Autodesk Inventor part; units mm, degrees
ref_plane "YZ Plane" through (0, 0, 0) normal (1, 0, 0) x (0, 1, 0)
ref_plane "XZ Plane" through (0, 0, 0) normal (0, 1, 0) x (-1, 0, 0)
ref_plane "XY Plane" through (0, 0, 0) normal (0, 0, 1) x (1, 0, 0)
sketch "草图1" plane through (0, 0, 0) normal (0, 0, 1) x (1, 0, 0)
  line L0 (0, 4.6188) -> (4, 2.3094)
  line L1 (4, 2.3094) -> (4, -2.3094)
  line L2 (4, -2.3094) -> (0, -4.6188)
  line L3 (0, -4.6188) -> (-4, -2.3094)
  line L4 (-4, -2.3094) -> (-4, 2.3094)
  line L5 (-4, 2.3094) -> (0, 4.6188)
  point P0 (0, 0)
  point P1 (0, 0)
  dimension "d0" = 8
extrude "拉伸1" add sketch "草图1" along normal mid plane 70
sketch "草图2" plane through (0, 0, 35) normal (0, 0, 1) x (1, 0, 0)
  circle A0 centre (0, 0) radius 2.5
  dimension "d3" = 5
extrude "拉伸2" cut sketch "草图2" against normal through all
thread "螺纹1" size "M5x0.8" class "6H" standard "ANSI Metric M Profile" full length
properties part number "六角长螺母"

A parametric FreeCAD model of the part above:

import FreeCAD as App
import Part
import Sketcher
Q = App.Units.Quantity

doc = App.newDocument("Part")
body = doc.addObject("PartDesign::Body", "Body")

sketch1 = body.newObject("Sketcher::SketchObject", "Sketch")
sketch1.AttachmentSupport = (doc.getObject("XY_Plane"), [""])
sketch1.MapMode = "FlatFace"
sketch1.addGeometry(Part.LineSegment(App.Vector(4, 2.3094, 0), App.Vector(0, 4.6188, 0)), False)
sketch1.addGeometry(Part.LineSegment(App.Vector(0, 4.6188, 0), App.Vector(-4, 2.3094, 0)), False)
sketch1.addGeometry(Part.LineSegment(App.Vector(-4, 2.3094, 0), App.Vector(-4, -2.3094, 0)), False)
sketch1.addGeometry(Part.LineSegment(App.Vector(-4, -2.3094, 0), App.Vector(0, -4.6188, 0)), False)
sketch1.addGeometry(Part.LineSegment(App.Vector(0, -4.6188, 0), App.Vector(4, -2.3094, 0)), False)
sketch1.addGeometry(Part.LineSegment(App.Vector(4, -2.3094, 0), App.Vector(4, 2.3094, 0)), False)
sketch1.addConstraint(Sketcher.Constraint("Coincident", 0, 2, 1, 1))
sketch1.addConstraint(Sketcher.Constraint("Coincident", 1, 2, 2, 1))
sketch1.addConstraint(Sketcher.Constraint("Coincident", 2, 2, 3, 1))
sketch1.addConstraint(Sketcher.Constraint("Coincident", 3, 2, 4, 1))
sketch1.addConstraint(Sketcher.Constraint("Coincident", 4, 2, 5, 1))
sketch1.addConstraint(Sketcher.Constraint("Coincident", 5, 2, 0, 1))
sketch1.addConstraint(Sketcher.Constraint("Vertical", 2))
sketch1.addConstraint(Sketcher.Constraint("Vertical", 5))
sketch1.addConstraint(Sketcher.Constraint("Symmetric", 0, 2, 3, 2, -1, 1))
sketch1.addConstraint(Sketcher.Constraint("Symmetric", 1, 2, 4, 2, -1, 1))
sketch1.addConstraint(Sketcher.Constraint("PointOnObject", 0, 2, -2))
sketch1.addConstraint(Sketcher.Constraint("Parallel", 0, 3))
sketch1.addConstraint(Sketcher.Constraint("Horizontal", 2, 2, 4, 2))
sketch1.addConstraint(Sketcher.Constraint("DistanceX", 2, 2, 4, 2, 8.0))
sketch1.addConstraint(Sketcher.Constraint("Angle", 0, Q("150 deg")))
sketch1.addConstraint(Sketcher.Constraint("DistanceY", 2, 2, 2, 1, 4.6188))
pad1 = body.newObject("PartDesign::Pad", "Pad")
pad1.Profile = sketch1
pad1.Length = 70
pad1.Midplane = True

sketch2 = body.newObject("Sketcher::SketchObject", "Sketch001")
sketch2.AttachmentSupport = (doc.getObject("XY_Plane"), [""])
sketch2.MapMode = "FlatFace"
sketch2.AttachmentOffset = App.Placement(App.Vector(0, 0, 35), App.Rotation())
sketch2.addGeometry(Part.Circle(App.Vector(0, 0, 0), App.Vector(0, 0, 1), 2.5), False)
sketch2.addConstraint(Sketcher.Constraint("Coincident", 0, 3, -1, 1))
sketch2.addConstraint(Sketcher.Constraint("Diameter", 0, 5.0))
pocket1 = body.newObject("PartDesign::Pocket", "Pocket")
pocket1.Profile = sketch2
pocket1.Type = "ThroughAll"

doc.recompute()
